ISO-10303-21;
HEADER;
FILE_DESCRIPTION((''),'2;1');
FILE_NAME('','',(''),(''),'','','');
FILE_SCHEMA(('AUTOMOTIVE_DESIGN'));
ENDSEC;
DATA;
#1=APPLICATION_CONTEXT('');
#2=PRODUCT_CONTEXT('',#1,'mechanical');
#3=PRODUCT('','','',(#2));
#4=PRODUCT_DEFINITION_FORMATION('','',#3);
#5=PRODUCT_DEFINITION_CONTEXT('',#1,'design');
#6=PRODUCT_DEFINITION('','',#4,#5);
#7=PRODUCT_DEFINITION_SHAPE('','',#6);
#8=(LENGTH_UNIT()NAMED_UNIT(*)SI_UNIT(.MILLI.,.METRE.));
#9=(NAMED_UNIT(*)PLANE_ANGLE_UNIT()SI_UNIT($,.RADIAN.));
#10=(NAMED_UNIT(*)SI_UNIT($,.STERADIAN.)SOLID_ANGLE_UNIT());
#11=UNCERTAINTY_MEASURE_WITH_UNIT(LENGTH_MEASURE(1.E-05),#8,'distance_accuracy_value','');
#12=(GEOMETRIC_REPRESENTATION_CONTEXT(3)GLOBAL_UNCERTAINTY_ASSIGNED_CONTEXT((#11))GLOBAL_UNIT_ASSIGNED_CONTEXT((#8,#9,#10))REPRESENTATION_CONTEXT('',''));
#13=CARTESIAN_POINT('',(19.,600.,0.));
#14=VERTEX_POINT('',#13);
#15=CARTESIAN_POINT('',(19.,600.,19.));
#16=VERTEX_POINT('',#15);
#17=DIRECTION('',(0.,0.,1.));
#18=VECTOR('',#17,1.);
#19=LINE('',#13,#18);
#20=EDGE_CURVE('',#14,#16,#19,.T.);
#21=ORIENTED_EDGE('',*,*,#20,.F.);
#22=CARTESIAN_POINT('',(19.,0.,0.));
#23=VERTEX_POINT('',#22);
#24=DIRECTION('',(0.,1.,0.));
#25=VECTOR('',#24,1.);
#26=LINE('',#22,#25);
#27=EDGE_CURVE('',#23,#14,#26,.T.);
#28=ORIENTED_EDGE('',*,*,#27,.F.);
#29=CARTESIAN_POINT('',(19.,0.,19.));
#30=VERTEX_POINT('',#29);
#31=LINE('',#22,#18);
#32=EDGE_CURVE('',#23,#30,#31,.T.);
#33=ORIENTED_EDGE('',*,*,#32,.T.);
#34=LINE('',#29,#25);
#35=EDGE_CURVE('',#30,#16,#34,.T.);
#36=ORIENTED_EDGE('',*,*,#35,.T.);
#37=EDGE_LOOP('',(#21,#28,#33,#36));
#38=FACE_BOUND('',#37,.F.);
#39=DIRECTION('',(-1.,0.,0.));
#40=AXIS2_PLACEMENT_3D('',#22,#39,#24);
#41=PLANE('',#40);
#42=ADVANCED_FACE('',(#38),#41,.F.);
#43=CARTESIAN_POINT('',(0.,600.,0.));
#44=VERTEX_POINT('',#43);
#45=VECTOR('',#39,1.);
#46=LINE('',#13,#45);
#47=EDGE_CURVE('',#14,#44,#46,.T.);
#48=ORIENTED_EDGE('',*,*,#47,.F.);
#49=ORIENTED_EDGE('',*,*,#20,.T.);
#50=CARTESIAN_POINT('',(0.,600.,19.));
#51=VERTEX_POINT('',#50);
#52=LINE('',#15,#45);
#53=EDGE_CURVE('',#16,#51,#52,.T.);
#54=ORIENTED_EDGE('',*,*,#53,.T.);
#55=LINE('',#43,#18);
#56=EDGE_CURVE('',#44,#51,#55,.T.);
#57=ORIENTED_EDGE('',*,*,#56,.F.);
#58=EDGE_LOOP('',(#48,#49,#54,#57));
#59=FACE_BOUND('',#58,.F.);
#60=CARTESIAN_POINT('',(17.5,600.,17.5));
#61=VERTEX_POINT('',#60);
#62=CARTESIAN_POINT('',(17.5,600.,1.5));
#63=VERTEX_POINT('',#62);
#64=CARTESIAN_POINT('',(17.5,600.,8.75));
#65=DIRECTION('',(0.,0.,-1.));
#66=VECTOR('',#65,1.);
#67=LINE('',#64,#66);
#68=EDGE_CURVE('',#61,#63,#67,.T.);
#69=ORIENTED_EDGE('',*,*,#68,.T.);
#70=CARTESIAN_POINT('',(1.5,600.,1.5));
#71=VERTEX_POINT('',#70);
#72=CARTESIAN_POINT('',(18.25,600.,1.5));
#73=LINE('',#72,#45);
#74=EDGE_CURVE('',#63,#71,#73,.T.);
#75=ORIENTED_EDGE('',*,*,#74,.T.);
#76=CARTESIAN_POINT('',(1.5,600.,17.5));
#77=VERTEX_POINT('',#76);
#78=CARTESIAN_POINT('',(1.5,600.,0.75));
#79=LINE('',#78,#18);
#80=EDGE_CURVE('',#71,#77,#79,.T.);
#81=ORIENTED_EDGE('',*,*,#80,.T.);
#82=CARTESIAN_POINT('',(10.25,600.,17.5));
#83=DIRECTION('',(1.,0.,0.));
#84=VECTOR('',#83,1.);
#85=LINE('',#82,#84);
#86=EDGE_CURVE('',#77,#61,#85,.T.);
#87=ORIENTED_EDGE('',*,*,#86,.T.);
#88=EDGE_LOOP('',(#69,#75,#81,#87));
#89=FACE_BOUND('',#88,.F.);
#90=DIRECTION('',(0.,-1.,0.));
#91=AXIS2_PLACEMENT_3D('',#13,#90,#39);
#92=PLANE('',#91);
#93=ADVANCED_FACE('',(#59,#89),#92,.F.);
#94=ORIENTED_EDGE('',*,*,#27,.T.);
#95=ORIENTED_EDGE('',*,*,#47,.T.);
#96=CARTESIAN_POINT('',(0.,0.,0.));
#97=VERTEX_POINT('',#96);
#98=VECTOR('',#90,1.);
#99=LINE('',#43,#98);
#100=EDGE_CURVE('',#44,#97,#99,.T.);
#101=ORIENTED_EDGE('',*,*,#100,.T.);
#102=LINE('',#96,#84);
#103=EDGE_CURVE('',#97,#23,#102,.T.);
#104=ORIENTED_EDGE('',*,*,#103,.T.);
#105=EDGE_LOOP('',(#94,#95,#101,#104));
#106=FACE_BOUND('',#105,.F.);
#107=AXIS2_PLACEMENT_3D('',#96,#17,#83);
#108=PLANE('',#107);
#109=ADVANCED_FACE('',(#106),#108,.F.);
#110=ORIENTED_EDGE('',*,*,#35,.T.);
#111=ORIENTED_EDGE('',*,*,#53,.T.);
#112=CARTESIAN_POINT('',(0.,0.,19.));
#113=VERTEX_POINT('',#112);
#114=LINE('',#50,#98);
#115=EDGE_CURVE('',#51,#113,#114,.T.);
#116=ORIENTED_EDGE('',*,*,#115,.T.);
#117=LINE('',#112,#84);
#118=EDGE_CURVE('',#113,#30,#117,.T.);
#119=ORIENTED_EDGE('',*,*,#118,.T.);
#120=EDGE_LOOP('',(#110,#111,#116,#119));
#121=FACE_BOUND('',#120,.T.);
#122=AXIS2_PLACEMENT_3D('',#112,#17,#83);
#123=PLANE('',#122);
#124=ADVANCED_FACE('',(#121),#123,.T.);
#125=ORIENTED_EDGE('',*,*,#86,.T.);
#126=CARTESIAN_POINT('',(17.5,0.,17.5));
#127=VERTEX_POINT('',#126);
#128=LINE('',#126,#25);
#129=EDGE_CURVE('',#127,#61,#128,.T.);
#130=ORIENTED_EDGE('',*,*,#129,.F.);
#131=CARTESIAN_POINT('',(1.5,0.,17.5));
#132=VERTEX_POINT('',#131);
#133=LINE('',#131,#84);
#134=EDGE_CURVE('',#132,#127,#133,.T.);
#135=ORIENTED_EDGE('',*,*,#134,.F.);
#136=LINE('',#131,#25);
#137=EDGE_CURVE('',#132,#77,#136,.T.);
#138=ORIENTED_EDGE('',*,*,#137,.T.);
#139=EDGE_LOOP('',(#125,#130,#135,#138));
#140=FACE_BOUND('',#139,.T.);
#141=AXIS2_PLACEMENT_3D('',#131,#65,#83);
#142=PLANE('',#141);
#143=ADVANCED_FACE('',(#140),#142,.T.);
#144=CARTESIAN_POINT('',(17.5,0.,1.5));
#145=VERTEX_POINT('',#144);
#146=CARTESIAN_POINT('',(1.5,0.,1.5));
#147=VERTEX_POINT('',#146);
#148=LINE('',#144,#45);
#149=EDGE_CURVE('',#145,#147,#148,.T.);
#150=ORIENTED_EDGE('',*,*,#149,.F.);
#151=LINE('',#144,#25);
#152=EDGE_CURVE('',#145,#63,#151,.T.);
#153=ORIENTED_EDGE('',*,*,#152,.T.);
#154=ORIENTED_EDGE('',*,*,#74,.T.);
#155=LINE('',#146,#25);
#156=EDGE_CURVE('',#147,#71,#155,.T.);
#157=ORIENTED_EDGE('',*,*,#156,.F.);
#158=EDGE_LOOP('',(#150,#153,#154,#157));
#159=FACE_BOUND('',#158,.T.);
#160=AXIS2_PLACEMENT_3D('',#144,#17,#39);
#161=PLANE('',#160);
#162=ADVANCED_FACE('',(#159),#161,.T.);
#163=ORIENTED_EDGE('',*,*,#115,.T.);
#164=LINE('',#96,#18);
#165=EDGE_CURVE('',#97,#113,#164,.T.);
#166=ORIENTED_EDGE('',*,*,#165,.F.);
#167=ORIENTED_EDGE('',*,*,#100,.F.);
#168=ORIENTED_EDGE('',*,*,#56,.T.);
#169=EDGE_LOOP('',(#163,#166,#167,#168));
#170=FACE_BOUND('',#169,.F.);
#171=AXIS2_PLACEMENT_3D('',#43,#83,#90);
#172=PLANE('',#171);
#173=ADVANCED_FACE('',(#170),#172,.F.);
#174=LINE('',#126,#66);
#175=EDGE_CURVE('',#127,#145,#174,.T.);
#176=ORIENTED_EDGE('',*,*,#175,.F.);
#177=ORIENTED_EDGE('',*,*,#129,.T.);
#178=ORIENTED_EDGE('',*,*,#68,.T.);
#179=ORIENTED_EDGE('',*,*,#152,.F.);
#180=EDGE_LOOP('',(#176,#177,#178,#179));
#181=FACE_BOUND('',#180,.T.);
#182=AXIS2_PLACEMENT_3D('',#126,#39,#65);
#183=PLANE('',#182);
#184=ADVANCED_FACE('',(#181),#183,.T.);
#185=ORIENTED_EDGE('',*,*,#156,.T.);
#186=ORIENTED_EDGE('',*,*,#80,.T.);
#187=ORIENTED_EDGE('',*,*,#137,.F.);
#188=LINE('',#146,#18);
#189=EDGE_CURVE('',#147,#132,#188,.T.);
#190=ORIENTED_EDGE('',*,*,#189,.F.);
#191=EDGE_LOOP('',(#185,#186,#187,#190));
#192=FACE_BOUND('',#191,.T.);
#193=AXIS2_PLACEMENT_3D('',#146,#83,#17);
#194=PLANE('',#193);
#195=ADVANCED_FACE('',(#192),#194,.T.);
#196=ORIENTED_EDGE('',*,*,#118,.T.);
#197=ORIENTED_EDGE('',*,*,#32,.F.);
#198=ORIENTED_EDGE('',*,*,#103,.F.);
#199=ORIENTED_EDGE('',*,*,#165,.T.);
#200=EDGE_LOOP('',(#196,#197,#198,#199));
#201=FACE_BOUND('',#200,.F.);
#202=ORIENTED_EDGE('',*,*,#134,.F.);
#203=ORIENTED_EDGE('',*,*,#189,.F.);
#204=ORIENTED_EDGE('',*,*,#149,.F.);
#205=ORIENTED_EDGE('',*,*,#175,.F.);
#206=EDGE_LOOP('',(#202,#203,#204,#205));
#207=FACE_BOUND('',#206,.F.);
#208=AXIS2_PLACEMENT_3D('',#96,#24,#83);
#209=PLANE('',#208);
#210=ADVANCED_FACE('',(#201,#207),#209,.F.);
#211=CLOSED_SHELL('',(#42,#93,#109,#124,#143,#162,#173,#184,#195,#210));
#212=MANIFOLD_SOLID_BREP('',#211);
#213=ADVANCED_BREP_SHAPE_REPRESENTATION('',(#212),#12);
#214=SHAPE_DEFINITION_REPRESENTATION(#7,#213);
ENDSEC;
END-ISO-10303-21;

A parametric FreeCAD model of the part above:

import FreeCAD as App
import Part
import Sketcher
from FreeCAD import Vector
Q = App.Units.Quantity

doc = App.newDocument("Part")
body = doc.addObject("PartDesign::Body", "Body")

# Sketch on XY plane
sketch1 = doc.addObject("Sketcher::SketchObject", "Sketch")
body.addObject(sketch1)
sketch1.AttachmentSupport = (doc.XY_Plane, [""])
sketch1.MapMode = "FlatFace"
sketch1.addGeometry(Part.LineSegment(Vector(0, 600, 0), Vector(0, 0, 0)), False)
sketch1.addGeometry(Part.LineSegment(Vector(0, 0, 0), Vector(19, 0, 0)), False)
sketch1.addGeometry(Part.LineSegment(Vector(19, 0, 0), Vector(19, 600, 0)), False)
sketch1.addGeometry(Part.LineSegment(Vector(19, 600, 0), Vector(0, 600, 0)), False)
sketch1.addConstraint(Sketcher.Constraint("Coincident", 0, 2, 1, 1))
sketch1.addConstraint(Sketcher.Constraint("Coincident", 1, 2, 2, 1))
sketch1.addConstraint(Sketcher.Constraint("Coincident", 2, 2, 3, 1))
sketch1.addConstraint(Sketcher.Constraint("Coincident", 3, 2, 0, 1))
sketch1.addConstraint(Sketcher.Constraint("Vertical", 0))
sketch1.addConstraint(Sketcher.Constraint("Horizontal", 1))
sketch1.addConstraint(Sketcher.Constraint("Vertical", 2))
sketch1.addConstraint(Sketcher.Constraint("Horizontal", 3))
sketch1.addConstraint(Sketcher.Constraint("Coincident", 0, 2, -1, 1))
sketch1.addConstraint(Sketcher.Constraint("DistanceX", 1, 1, 1, 2, Q("19 mm")))
sketch1.addConstraint(Sketcher.Constraint("DistanceY", 0, 2, 0, 1, Q("600 mm")))
pad1 = doc.addObject("PartDesign::Pad", "Pad")
body.addObject(pad1)
pad1.Profile = sketch1
pad1.Length = 19

# Sketch on XZ plane
sketch2 = doc.addObject("Sketcher::SketchObject", "Sketch001")
body.addObject(sketch2)
sketch2.AttachmentSupport = (doc.XZ_Plane, [""])
sketch2.MapMode = "FlatFace"
sketch2.addGeometry(Part.LineSegment(Vector(2, 2, 0), Vector(18, 2, 0)), False)
sketch2.addGeometry(Part.LineSegment(Vector(18, 2, 0), Vector(18, 18, 0)), False)
sketch2.addGeometry(Part.LineSegment(Vector(18, 18, 0), Vector(2, 18, 0)), False)
sketch2.addGeometry(Part.LineSegment(Vector(2, 18, 0), Vector(2, 2, 0)), False)
sketch2.addConstraint(Sketcher.Constraint("Coincident", 0, 2, 1, 1))
sketch2.addConstraint(Sketcher.Constraint("Coincident", 1, 2, 2, 1))
sketch2.addConstraint(Sketcher.Constraint("Coincident", 2, 2, 3, 1))
sketch2.addConstraint(Sketcher.Constraint("Coincident", 3, 2, 0, 1))
sketch2.addConstraint(Sketcher.Constraint("Horizontal", 0))
sketch2.addConstraint(Sketcher.Constraint("Vertical", 1))
sketch2.addConstraint(Sketcher.Constraint("Horizontal", 2))
sketch2.addConstraint(Sketcher.Constraint("Vertical", 3))
sketch2.addConstraint(Sketcher.Constraint("Equal", 2, 1))
sketch2.addConstraint(Sketcher.Constraint("DistanceY", -1, 1, 0, 2, Q("1.5 mm")))
sketch2.addConstraint(Sketcher.Constraint("DistanceX", -1, 1, 2, 2, Q("1.5 mm")))
sketch2.addConstraint(Sketcher.Constraint("DistanceX", 0, 1, 0, 2, Q("16 mm")))
pocket1 = doc.addObject("PartDesign::Pocket", "Pocket")
body.addObject(pocket1)
pocket1.Profile = sketch2
pocket1.Type = "ThroughAll"

doc.recompute()
